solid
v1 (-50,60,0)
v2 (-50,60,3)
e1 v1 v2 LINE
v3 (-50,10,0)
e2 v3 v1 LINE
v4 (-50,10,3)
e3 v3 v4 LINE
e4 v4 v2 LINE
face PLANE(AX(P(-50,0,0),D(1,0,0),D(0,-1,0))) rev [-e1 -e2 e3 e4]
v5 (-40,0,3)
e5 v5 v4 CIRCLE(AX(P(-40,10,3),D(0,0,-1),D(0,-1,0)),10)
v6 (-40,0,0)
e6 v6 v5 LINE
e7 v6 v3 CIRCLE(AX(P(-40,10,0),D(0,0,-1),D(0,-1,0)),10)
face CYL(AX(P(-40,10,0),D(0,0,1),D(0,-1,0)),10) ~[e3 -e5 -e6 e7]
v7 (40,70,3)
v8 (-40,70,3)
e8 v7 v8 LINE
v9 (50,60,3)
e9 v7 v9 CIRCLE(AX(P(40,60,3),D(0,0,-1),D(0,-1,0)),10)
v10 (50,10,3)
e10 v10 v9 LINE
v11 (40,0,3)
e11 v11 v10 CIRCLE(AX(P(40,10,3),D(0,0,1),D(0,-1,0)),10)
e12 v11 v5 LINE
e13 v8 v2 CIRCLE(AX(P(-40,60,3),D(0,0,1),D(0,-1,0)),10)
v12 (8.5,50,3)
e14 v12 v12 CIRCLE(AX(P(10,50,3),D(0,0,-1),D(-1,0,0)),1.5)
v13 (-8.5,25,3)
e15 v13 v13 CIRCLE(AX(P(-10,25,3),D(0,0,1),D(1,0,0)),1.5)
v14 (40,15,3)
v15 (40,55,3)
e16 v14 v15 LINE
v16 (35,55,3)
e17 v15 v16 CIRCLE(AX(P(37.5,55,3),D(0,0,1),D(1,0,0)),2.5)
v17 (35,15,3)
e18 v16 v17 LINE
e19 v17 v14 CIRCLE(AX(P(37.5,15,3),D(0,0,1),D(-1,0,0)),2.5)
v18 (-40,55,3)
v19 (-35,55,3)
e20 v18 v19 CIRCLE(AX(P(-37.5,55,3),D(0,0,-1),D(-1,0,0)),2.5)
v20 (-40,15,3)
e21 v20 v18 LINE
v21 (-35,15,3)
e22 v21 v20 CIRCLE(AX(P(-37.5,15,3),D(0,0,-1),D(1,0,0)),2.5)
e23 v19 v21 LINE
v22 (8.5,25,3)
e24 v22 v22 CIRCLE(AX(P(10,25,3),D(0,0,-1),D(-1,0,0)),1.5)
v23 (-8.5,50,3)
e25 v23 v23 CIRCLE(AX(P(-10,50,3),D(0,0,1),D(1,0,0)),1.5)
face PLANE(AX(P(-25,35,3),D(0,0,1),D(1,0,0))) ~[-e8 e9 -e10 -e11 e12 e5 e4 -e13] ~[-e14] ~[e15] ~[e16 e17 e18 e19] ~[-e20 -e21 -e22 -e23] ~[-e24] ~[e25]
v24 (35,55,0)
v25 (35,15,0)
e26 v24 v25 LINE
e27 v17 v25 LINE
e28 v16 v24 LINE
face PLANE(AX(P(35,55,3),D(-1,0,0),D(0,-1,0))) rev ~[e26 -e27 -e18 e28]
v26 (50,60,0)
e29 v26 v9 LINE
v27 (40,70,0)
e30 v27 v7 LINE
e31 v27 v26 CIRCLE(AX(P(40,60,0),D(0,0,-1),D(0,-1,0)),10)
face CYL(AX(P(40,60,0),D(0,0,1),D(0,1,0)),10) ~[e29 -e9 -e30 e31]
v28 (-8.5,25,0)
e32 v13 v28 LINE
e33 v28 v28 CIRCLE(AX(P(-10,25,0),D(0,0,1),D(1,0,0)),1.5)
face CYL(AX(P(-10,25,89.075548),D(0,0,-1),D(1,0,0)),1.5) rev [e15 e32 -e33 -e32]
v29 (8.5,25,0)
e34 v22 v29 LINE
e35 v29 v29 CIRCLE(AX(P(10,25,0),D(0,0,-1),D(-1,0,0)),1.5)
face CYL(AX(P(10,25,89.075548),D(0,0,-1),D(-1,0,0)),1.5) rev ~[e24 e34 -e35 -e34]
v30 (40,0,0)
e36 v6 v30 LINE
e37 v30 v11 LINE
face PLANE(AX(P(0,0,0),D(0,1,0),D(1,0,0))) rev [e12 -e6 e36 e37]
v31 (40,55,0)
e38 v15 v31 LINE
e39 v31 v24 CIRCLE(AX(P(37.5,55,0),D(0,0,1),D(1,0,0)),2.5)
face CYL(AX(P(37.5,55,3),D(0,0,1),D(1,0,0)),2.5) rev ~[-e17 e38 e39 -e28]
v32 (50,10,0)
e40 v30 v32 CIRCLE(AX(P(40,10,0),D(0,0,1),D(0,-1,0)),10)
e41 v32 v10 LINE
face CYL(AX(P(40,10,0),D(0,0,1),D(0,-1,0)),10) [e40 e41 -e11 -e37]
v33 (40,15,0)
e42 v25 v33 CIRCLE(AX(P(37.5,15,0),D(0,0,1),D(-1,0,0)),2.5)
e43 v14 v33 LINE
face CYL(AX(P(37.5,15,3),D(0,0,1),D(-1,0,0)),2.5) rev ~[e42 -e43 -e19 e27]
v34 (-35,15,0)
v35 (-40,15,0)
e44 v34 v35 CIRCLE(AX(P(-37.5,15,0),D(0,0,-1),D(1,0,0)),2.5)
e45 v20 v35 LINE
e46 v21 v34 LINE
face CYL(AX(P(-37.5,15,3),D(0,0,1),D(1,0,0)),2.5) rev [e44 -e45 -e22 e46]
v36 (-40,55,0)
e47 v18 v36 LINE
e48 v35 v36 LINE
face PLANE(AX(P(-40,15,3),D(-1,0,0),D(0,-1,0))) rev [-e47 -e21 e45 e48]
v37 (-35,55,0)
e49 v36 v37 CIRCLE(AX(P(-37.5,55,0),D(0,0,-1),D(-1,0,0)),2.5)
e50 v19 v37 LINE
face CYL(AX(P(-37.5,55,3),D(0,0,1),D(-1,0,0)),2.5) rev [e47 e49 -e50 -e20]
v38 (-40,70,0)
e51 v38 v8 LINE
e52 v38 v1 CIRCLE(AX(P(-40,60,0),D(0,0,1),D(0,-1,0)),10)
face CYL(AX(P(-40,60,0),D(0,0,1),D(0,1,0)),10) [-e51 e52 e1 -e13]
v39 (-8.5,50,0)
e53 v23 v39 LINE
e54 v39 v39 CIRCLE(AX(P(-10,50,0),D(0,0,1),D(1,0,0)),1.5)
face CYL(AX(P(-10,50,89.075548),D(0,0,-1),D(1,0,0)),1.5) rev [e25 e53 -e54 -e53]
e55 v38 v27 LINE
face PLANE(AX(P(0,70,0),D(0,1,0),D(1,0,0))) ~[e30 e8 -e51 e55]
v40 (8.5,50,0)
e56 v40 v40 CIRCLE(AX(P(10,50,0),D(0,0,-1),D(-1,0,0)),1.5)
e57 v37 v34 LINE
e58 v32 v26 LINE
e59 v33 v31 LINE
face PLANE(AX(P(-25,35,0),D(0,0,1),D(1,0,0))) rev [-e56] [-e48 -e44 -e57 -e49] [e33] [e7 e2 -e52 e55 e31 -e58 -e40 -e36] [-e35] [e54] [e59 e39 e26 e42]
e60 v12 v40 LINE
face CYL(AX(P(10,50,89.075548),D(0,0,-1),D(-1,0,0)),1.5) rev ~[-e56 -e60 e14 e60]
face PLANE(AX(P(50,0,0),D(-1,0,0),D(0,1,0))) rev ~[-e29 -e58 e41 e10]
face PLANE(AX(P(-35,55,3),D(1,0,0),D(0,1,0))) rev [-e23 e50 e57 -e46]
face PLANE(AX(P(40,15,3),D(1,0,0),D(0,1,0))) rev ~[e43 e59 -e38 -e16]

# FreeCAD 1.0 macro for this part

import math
import FreeCAD as App
import Part
import Sketcher

V = App.Vector


def edges_at(feature, points):
    """Names of the edges that pass closest to the given points."""
    edges = feature.Shape.Edges
    near = lambda p: min(range(len(edges)), key=lambda i: edges[i].distToShape(Part.Vertex(*p))[0])
    return sorted({f"Edge{near(p) + 1}" for p in points})


def add_polygon(sketch, points):
    """Adds a closed chain of lines whose ends are joined by coincident constraints."""
    first, n = sketch.GeometryCount, len(points)
    for a, b in zip(points, points[1:] + points[:1]):
        sketch.addGeometry(Part.LineSegment(App.Vector(*a, 0), App.Vector(*b, 0)), False)
    for i in range(n):
        sketch.addConstraint(Sketcher.Constraint("Coincident", first + i, 2, first + (i + 1) % n, 1))

doc = App.newDocument("Part")
params = doc.addObject("Spreadsheet::Sheet", "Params")
for row, (alias, value) in enumerate([
    ("sketch1_width", "50 mm"),
    ("sketch1_height", "70 mm"),
    ("pad1_length", "3 mm"),
    ("sketch2_diameter", "3 mm"),
    ("hole_diameter", "3 mm"),
    ("sketch3_radius", "2.5 mm"),
    ("sketch3_height", "40 mm"),
    ("pocket1_length", "28.640468 mm"),
    ("fillet_radius", "10 mm"),
], start=1):
    params.set(f"A{row}", alias)
    params.set(f"B{row}", "=" + value)
    params.setAlias(f"B{row}", alias)

body = doc.addObject("PartDesign::Body", "Body")

# Sketch on XY plane
sketch1 = body.newObject("Sketcher::SketchObject", "Sketch")
sketch1.AttachmentSupport = (doc.getObject("XY_Plane"), [""])
sketch1.MapMode = "FlatFace"
add_polygon(sketch1, [(0, 70), (0, 0), (50, 0), (50, 70)])  # lines 0-3
sketch1.addConstraint([
    Sketcher.Constraint("Vertical", 0),
    Sketcher.Constraint("Horizontal", 1),
    Sketcher.Constraint("Vertical", 2),
    Sketcher.Constraint("Horizontal", 3),
    Sketcher.Constraint("Coincident", 0, 2, -1, 1),
    Sketcher.Constraint("DistanceX", 1, 1, 1, 2, 50.0),
    Sketcher.Constraint("DistanceY", 0, 2, 0, 1, 70.0),
])
sketch1.setExpression("Constraints[9]", "Params.sketch1_width")
sketch1.setExpression("Constraints[10]", "Params.sketch1_height")
pad1 = body.newObject("PartDesign::Pad", "Pad")
pad1.Profile = sketch1
pad1.setExpression("Length", "Params.pad1_length")

# Sketch on XY plane
sketch2 = body.newObject("Sketcher::SketchObject", "Sketch001")
sketch2.AttachmentSupport = (doc.getObject("XY_Plane"), [""])
sketch2.MapMode = "FlatFace"
sketch2.AttachmentOffset = App.Placement(V(0, 0, 3), App.Rotation())
sketch2.addGeometry([
    Part.Circle(V(10, 25, 0), V(0, 0, 1), 1.5),
    Part.Circle(V(10, 50, 0), V(0, 0, 1), 1.5),
], False)
sketch2.addConstraint([
    Sketcher.Constraint("Equal", 0, 1),
    Sketcher.Constraint("Vertical", 0, 3, 1, 3),
    Sketcher.Constraint("Diameter", 0, 3.0),
    Sketcher.Constraint("DistanceX", -1, 1, 0, 3, 10.0),
    Sketcher.Constraint("DistanceY", -1, 1, 0, 3, 25.0),
    Sketcher.Constraint("DistanceY", -1, 1, 1, 3, 50.0),
])
sketch2.setExpression("Constraints[2]", "Params.sketch2_diameter")
doc.recompute()
hole = body.newObject("PartDesign::Hole", "Hole")
hole.Profile = sketch2
hole.ThreadType = "None"
hole.setExpression("Diameter", "Params.hole_diameter")
hole.DepthType = "ThroughAll"

# Sketch on XY plane
sketch3 = body.newObject("Sketcher::SketchObject", "Sketch002")
sketch3.AttachmentSupport = (doc.getObject("XY_Plane"), [""])
sketch3.MapMode = "FlatFace"
sketch3.AttachmentOffset = App.Placement(V(0, 0, 3), App.Rotation())
sketch3.addGeometry([
    Part.ArcOfCircle(Part.Circle(V(37.5, 15, 0), V(0, 0, 1), 2.5), math.radians(180), math.radians(360)),
    Part.LineSegment(V(40, 15, 0), V(40, 55, 0)),
    Part.ArcOfCircle(Part.Circle(V(37.5, 55, 0), V(0, 0, 1), 2.5), math.radians(0), math.radians(180)),
    Part.LineSegment(V(35, 55, 0), V(35, 15, 0)),
], False)
sketch3.addConstraint([
    Sketcher.Constraint("Tangent", 0, 2, 1, 1),
    Sketcher.Constraint("Tangent", 1, 2, 2, 1),
    Sketcher.Constraint("Tangent", 2, 2, 3, 1),
    Sketcher.Constraint("Tangent", 3, 2, 0, 1),
    Sketcher.Constraint("Vertical", 1),
    Sketcher.Constraint("Vertical", 3),
    Sketcher.Constraint("Radius", 0, 2.5),
    Sketcher.Constraint("DistanceY", 1, 1, 1, 2, 40.0),
    Sketcher.Constraint("DistanceY", -1, 1, 0, 3, 15.0),
    Sketcher.Constraint("DistanceX", -1, 1, 0, 2, 40.0),
])
sketch3.setExpression("Constraints[6]", "Params.sketch3_radius")
sketch3.setExpression("Constraints[7]", "Params.sketch3_height")
pocket1 = body.newObject("PartDesign::Pocket", "Pocket")
pocket1.Profile = sketch3
pocket1.setExpression("Length", "Params.pocket1_length")
doc.recompute()

fillet = body.newObject("PartDesign::Fillet", "Fillet")
fillet.Base = (pocket1, edges_at(pocket1, [(50, 70, 1.5), (50, 0, 1.5)]))
fillet.setExpression("Radius", "Params.fillet_radius")
body2 = doc.addObject("PartDesign::Body", "Body001")
doc.recompute()

body2.BaseFeature = body
doc.recompute()

mirroring = doc.addObject("Part::Mirroring", "Mirroring")
mirroring.Source = body
mirroring.Base = V(0, 0, 0)
mirroring.Normal = V(1, 0, 0)
body3 = doc.addObject("PartDesign::Body", "Body002")
body3.BaseFeature = mirroring
boolean = body2.newObject("PartDesign::Boolean", "Boolean")
boolean.Type = "Fuse"
boolean.addObjects([body3])
doc.recompute()
mirroring.Visibility = False

doc.recompute()
